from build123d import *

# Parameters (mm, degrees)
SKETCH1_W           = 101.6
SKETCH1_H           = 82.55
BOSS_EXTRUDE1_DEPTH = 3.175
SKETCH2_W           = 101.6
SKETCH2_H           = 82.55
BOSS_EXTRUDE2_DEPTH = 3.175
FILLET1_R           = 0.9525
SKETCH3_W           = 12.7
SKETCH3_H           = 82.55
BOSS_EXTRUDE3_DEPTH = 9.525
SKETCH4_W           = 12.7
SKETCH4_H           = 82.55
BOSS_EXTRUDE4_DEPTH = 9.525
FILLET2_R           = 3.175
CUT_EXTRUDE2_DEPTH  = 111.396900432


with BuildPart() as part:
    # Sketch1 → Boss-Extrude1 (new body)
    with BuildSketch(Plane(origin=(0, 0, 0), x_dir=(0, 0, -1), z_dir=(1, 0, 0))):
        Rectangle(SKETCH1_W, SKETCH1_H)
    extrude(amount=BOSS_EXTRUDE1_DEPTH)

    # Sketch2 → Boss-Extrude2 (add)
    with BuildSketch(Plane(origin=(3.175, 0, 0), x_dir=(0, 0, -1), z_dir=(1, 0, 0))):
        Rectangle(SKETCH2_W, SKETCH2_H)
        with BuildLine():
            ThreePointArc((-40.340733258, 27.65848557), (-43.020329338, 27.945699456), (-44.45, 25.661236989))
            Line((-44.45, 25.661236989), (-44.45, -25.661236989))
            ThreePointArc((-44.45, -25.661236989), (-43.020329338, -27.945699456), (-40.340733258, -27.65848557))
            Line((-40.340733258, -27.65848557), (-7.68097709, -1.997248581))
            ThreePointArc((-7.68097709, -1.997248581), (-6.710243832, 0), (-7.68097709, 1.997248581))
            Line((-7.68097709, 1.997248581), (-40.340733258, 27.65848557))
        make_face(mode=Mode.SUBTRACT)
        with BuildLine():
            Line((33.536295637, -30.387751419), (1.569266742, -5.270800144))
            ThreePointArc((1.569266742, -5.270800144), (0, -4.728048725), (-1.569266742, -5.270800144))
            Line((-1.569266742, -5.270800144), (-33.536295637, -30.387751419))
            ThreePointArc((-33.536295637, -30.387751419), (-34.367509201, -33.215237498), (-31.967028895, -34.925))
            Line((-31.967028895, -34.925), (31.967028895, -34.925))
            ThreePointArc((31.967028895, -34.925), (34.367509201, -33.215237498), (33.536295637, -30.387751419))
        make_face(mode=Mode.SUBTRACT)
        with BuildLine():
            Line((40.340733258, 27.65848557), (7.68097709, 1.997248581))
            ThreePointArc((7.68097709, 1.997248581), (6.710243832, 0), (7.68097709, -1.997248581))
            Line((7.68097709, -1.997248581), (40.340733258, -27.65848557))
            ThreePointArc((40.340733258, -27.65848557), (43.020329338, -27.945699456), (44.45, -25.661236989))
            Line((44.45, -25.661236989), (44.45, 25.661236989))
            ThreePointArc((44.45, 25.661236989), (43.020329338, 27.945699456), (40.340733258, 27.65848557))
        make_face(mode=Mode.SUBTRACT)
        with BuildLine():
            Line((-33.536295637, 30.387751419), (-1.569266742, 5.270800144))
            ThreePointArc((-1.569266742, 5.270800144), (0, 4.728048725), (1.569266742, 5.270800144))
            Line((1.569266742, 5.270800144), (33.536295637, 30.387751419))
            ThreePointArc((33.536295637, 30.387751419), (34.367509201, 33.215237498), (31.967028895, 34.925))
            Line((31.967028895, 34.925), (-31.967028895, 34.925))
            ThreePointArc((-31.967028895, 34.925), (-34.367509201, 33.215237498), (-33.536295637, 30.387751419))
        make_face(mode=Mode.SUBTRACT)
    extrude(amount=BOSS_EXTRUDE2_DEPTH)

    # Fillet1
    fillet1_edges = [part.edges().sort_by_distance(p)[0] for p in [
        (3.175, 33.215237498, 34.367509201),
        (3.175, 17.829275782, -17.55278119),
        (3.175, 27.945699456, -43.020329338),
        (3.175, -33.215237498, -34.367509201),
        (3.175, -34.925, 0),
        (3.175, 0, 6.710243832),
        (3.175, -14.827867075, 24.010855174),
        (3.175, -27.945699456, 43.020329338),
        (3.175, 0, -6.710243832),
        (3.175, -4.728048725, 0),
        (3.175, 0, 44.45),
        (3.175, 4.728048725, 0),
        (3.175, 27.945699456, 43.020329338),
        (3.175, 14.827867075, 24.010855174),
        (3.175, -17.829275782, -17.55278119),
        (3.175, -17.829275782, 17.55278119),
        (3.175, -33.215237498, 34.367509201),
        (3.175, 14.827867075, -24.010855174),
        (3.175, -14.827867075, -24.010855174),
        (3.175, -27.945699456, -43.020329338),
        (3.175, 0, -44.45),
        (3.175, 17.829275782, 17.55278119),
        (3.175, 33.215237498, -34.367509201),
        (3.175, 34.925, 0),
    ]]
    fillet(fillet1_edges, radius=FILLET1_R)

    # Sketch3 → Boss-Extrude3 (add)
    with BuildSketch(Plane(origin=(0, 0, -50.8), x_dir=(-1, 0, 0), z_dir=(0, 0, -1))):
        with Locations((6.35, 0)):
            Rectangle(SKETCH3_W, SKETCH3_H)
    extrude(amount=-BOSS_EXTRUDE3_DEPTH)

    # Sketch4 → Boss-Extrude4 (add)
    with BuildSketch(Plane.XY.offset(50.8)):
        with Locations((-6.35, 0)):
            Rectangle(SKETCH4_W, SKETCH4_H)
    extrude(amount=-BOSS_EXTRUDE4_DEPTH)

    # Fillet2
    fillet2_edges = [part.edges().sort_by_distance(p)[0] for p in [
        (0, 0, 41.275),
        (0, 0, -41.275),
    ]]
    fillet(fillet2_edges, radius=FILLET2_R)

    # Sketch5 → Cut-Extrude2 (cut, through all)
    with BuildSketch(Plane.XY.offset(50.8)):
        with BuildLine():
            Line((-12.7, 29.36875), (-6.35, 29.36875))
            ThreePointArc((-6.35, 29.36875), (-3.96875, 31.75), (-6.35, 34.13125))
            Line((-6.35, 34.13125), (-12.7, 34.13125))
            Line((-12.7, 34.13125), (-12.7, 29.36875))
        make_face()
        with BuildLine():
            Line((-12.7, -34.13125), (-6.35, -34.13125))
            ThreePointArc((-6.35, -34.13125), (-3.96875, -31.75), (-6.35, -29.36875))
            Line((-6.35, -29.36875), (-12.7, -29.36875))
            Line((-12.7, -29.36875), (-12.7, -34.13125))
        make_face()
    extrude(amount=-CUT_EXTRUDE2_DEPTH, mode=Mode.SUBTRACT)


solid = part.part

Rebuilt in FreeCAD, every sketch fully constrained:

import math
import FreeCAD as App
import Part
import Sketcher

V = App.Vector
Q = App.Units.Quantity


def edges_at(feature, points):
    """Names of the edges that pass closest to the given points."""
    edges = feature.Shape.Edges
    near = lambda p: min(range(len(edges)), key=lambda i: edges[i].distToShape(Part.Vertex(*p))[0])
    return sorted({f"Edge{near(p) + 1}" for p in points})


def add_polygon(sketch, points):
    """Adds a closed chain of lines whose ends are joined by coincident constraints."""
    first, n = sketch.GeometryCount, len(points)
    for a, b in zip(points, points[1:] + points[:1]):
        sketch.addGeometry(Part.LineSegment(App.Vector(*a, 0), App.Vector(*b, 0)), False)
    for i in range(n):
        sketch.addConstraint(Sketcher.Constraint("Coincident", first + i, 2, first + (i + 1) % n, 1))

doc = App.newDocument("Part")
body = doc.addObject("PartDesign::Body", "Body")

# Sketch on YZ plane
sketch1 = body.newObject("Sketcher::SketchObject", "Sketch")
sketch1.AttachmentSupport = (doc.getObject("YZ_Plane"), [""])
sketch1.MapMode = "FlatFace"
add_polygon(sketch1, [(41.275, 50.8), (-41.275, 50.8), (-41.275, -50.8), (41.275, -50.8)])  # lines 0-3
sketch1.addConstraint([
    Sketcher.Constraint("Horizontal", 0),
    Sketcher.Constraint("Vertical", 1),
    Sketcher.Constraint("Horizontal", 2),
    Sketcher.Constraint("Vertical", 3),
    Sketcher.Constraint("Symmetric", 0, 2, 2, 2, -1, 1),
    Sketcher.Constraint("DistanceY", 1, 2, 1, 1, Q("4 in")),
    Sketcher.Constraint("DistanceX", 0, 2, 0, 1, Q("3.25 in")),
])
pad1 = body.newObject("PartDesign::Pad", "Pad")
pad1.Profile = sketch1
pad1.Length = Q("0.125 in")

# Sketch on YZ plane
sketch2 = body.newObject("Sketcher::SketchObject", "Sketch001")
sketch2.AttachmentSupport = (doc.getObject("YZ_Plane"), [""])
sketch2.MapMode = "FlatFace"
sketch2.AttachmentOffset = App.Placement(V(0, 0, 0.125 * 25.4), App.Rotation())
add_polygon(sketch2, [(41.275, 50.8), (-41.275, 50.8), (-41.275, -50.8), (41.275, -50.8)])  # lines 0-3
sketch2.addGeometry(Part.LineSegment(V(-5.2708, -1.569267, 0), V(-30.387751, -33.536296, 0)), False)  # 4
sketch2.addGeometry(Part.ArcOfCircle(Part.Circle(V(-32.385, -31.967029, 0), V(0, 0, 1), 2.54), math.radians(180), math.radians(321.842773)), False)  # 5
sketch2.addGeometry(Part.LineSegment(V(-34.925, -31.967029, 0), V(-34.925, 31.967029, 0)), False)  # 6
sketch2.addGeometry(Part.ArcOfCircle(Part.Circle(V(-32.385, 31.967029, 0), V(0, 0, 1), 2.54), math.radians(38.157227), math.radians(180)), False)  # 7
sketch2.addGeometry(Part.LineSegment(V(-30.387751, 33.536296, 0), V(-5.2708, 1.569267, 0)), False)  # 8
sketch2.addGeometry(Part.ArcOfCircle(Part.Circle(V(-7.268049, 0, 0), V(0, 0, 1), 2.54), math.radians(-38.157227), math.radians(38.157227)), False)  # 9
sketch2.addGeometry(Part.ArcOfCircle(Part.Circle(V(25.661237, 41.91, 0), V(0, 0, 1), 2.54), math.radians(-38.157227), math.radians(90)), False)  # 10
sketch2.addGeometry(Part.LineSegment(V(27.658486, 40.340733, 0), V(1.997249, 7.680977, 0)), False)  # 11
sketch2.addGeometry(Part.ArcOfCircle(Part.Circle(V(0, 9.250244, 0), V(0, 0, 1), 2.54), math.radians(-141.842773), math.radians(-38.157227)), False)  # 12
sketch2.addGeometry(Part.LineSegment(V(-1.997249, 7.680977, 0), V(-27.658486, 40.340733, 0)), False)  # 13
sketch2.addGeometry(Part.ArcOfCircle(Part.Circle(V(-25.661237, 41.91, 0), V(0, 0, 1), 2.54), math.radians(90), math.radians(218.157227)), False)  # 14
sketch2.addGeometry(Part.LineSegment(V(-25.661237, 44.45, 0), V(25.661237, 44.45, 0)), False)  # 15
sketch2.addGeometry(Part.LineSegment(V(1.997249, -7.680977, 0), V(27.658486, -40.340733, 0)), False)  # 16
sketch2.addGeometry(Part.ArcOfCircle(Part.Circle(V(25.661237, -41.91, 0), V(0, 0, 1), 2.54), math.radians(-90), math.radians(38.157227)), False)  # 17
sketch2.addGeometry(Part.LineSegment(V(25.661237, -44.45, 0), V(-25.661237, -44.45, 0)), False)  # 18
sketch2.addGeometry(Part.ArcOfCircle(Part.Circle(V(-25.661237, -41.91, 0), V(0, 0, 1), 2.54), math.radians(141.842773), math.radians(270)), False)  # 19
sketch2.addGeometry(Part.LineSegment(V(-27.658486, -40.340733, 0), V(-1.997249, -7.680977, 0)), False)  # 20
sketch2.addGeometry(Part.ArcOfCircle(Part.Circle(V(0, -9.250244, 0), V(0, 0, 1), 2.54), math.radians(38.157227), math.radians(141.842773)), False)  # 21
sketch2.addGeometry(Part.LineSegment(V(5.2708, 1.569267, 0), V(30.387751, 33.536296, 0)), False)  # 22
sketch2.addGeometry(Part.ArcOfCircle(Part.Circle(V(32.385, 31.967029, 0), V(0, 0, 1), 2.54), math.radians(0), math.radians(141.842773)), False)  # 23
sketch2.addGeometry(Part.LineSegment(V(34.925, 31.967029, 0), V(34.925, -31.967029, 0)), False)  # 24
sketch2.addGeometry(Part.ArcOfCircle(Part.Circle(V(32.385, -31.967029, 0), V(0, 0, 1), 2.54), math.radians(-141.842773), math.radians(0)), False)  # 25
sketch2.addGeometry(Part.LineSegment(V(30.387751, -33.536296, 0), V(5.2708, -1.569267, 0)), False)  # 26
sketch2.addGeometry(Part.ArcOfCircle(Part.Circle(V(7.268049, 0, 0), V(0, 0, 1), 2.54), math.radians(141.842773), math.radians(218.157227)), False)  # 27
sketch2.addConstraint([
    Sketcher.Constraint("Tangent", 4, 2, 5, 2),
    Sketcher.Constraint("Tangent", 5, 1, 6, 1),
    Sketcher.Constraint("Tangent", 6, 2, 7, 2),
    Sketcher.Constraint("Tangent", 7, 1, 8, 1),
    Sketcher.Constraint("Tangent", 8, 2, 9, 2),
    Sketcher.Constraint("Tangent", 9, 1, 4, 1),
    Sketcher.Constraint("Tangent", 10, 1, 11, 1),
    Sketcher.Constraint("Tangent", 11, 2, 12, 2),
    Sketcher.Constraint("Tangent", 12, 1, 13, 1),
    Sketcher.Constraint("Tangent", 13, 2, 14, 2),
    Sketcher.Constraint("Tangent", 14, 1, 15, 1),
    Sketcher.Constraint("Tangent", 15, 2, 10, 2),
    Sketcher.Constraint("Tangent", 16, 2, 17, 2),
    Sketcher.Constraint("Tangent", 17, 1, 18, 1),
    Sketcher.Constraint("Tangent", 18, 2, 19, 2),
    Sketcher.Constraint("Tangent", 19, 1, 20, 1),
    Sketcher.Constraint("Tangent", 20, 2, 21, 2),
    Sketcher.Constraint("Tangent", 21, 1, 16, 1),
    Sketcher.Constraint("Tangent", 22, 2, 23, 2),
    Sketcher.Constraint("Tangent", 23, 1, 24, 1),
    Sketcher.Constraint("Tangent", 24, 2, 25, 2),
    Sketcher.Constraint("Tangent", 25, 1, 26, 1),
    Sketcher.Constraint("Tangent", 26, 2, 27, 2),
    Sketcher.Constraint("Tangent", 27, 1, 22, 1),
    Sketcher.Constraint("Horizontal", 0),
    Sketcher.Constraint("Vertical", 1),
    Sketcher.Constraint("Horizontal", 2),
    Sketcher.Constraint("Vertical", 3),
    Sketcher.Constraint("Vertical", 6),
    Sketcher.Constraint("Horizontal", 15),
    Sketcher.Constraint("Horizontal", 18),
    Sketcher.Constraint("Vertical", 24),
    Sketcher.Constraint("Equal", 5, 7),
    Sketcher.Constraint("Equal", 7, 9),
    Sketcher.Constraint("Equal", 9, 10),
    Sketcher.Constraint("Equal", 10, 12),
    Sketcher.Constraint("Equal", 12, 14),
    Sketcher.Constraint("Equal", 14, 17),
    Sketcher.Constraint("Equal", 17, 19),
    Sketcher.Constraint("Equal", 19, 21),
    Sketcher.Constraint("Equal", 21, 23),
    Sketcher.Constraint("Equal", 23, 25),
    Sketcher.Constraint("Equal", 25, 27),
    Sketcher.Constraint("Symmetric", 14, 3, 17, 3, -1, 1),
    Sketcher.Constraint("Symmetric", 12, 3, 21, 3, -1, 1),
    Sketcher.Constraint("Symmetric", 5, 3, 23, 3, -1, 1),
    Sketcher.Constraint("Symmetric", 9, 3, 27, 3, -1, 1),
    Sketcher.Constraint("Symmetric", 0, 2, 2, 2, -1, 1),
    Sketcher.Constraint("Symmetric", 11, 2, 12, 1, -2),
    Sketcher.Constraint("Symmetric", 7, 1, 22, 2, -2),
    Sketcher.Constraint("Parallel", 4, 11),
    Sketcher.Constraint("Parallel", 11, 20),
    Sketcher.Constraint("Parallel", 16, 26),
    Sketcher.Constraint("Radius", 5, Q("0.1 in")),
    Sketcher.Constraint("DistanceY", 1, 2, 1, 1, Q("4 in")),
    Sketcher.Constraint("DistanceX", 0, 2, 0, 1, Q("3.25 in")),
    Sketcher.Constraint("DistanceY", 17, 3, 10, 3, Q("3.3 in")),
    Sketcher.Constraint("DistanceX", 0, 2, 7, 3, Q("0.35 in")),
    Sketcher.Constraint("DistanceX", 8, 2, -1, 1, 5.2708),
    Sketcher.Constraint("Distance", 11, 41.53503),
    Sketcher.Constraint("DistanceX", 15, 1, 15, 2, 51.322474),
])
pad2 = body.newObject("PartDesign::Pad", "Pad001")
pad2.Profile = sketch2
pad2.Length = Q("0.125 in")
doc.recompute()

fillet = body.newObject("PartDesign::Fillet", "Fillet")
fillet.Base = (pad2, edges_at(pad2, [
    (3.175, 33.215, 34.368),
    (3.175, 17.829, -17.553),
    (3.175, 27.946, -43.02),
    (3.175, -33.215, -34.368),
    (3.175, -34.925, 0),
    (3.175, 0, 6.71),
    (3.175, -14.828, 24.011),
    (3.175, -27.946, 43.02),
    (3.175, 0, -6.71),
    (3.175, -4.728, 0),
    (3.175, 0, 44.45),
    (3.175, 4.728, 0),
    (3.175, 27.946, 43.02),
    (3.175, 14.828, 24.011),
    (3.175, -17.829, -17.553),
    (3.175, -17.829, 17.553),
    (3.175, -33.215, 34.368),
    (3.175, 14.828, -24.011),
    (3.175, -14.828, -24.011),
    (3.175, -27.946, -43.02),
    (3.175, 0, -44.45),
    (3.175, 17.829, 17.553),
    (3.175, 33.215, -34.368),
    (3.175, 34.925, 0),
]))
fillet.Radius = Q("0.0375 in")

# Sketch on XY plane
sketch3 = body.newObject("Sketcher::SketchObject", "Sketch002")
sketch3.AttachmentSupport = (doc.getObject("XY_Plane"), [""])
sketch3.MapMode = "FlatFace"
sketch3.AttachmentOffset = App.Placement(V(0, 0, -2 * 25.4), App.Rotation())
add_polygon(sketch3, [(0, 41.275), (0, -41.275), (-12.7, -41.275), (-12.7, 41.275)])  # lines 0-3
sketch3.addConstraint([
    Sketcher.Constraint("Vertical", 0),
    Sketcher.Constraint("Horizontal", 1),
    Sketcher.Constraint("Vertical", 2),
    Sketcher.Constraint("Horizontal", 3),
    Sketcher.Constraint("Symmetric", 0, 2, 3, 2, -1, 1),
    Sketcher.Constraint("DistanceX", 1, 2, 1, 1, Q("0.5 in")),
    Sketcher.Constraint("DistanceY", 0, 2, 0, 1, Q("3.25 in")),
])
pad3 = body.newObject("PartDesign::Pad", "Pad002")
pad3.Profile = sketch3
pad3.Length = Q("0.375 in")

# Sketch on XY plane
sketch4 = body.newObject("Sketcher::SketchObject", "Sketch003")
sketch4.AttachmentSupport = (doc.getObject("XY_Plane"), [""])
sketch4.MapMode = "FlatFace"
sketch4.AttachmentOffset = App.Placement(V(0, 0, 2 * 25.4), App.Rotation())
add_polygon(sketch4, [(-12.7, 41.275), (-12.7, -41.275), (0, -41.275), (0, 41.275)])  # lines 0-3
sketch4.addConstraint([
    Sketcher.Constraint("Vertical", 0),
    Sketcher.Constraint("Horizontal", 1),
    Sketcher.Constraint("Vertical", 2),
    Sketcher.Constraint("Horizontal", 3),
    Sketcher.Constraint("Symmetric", 1, 2, 2, 2, -1, 1),
    Sketcher.Constraint("DistanceX", 1, 1, 1, 2, Q("0.5 in")),
    Sketcher.Constraint("DistanceY", 0, 2, 0, 1, Q("3.25 in")),
])
pad4 = body.newObject("PartDesign::Pad", "Pad003")
pad4.Profile = sketch4
pad4.Length = Q("0.375 in")
pad4.Reversed = True
doc.recompute()

fillet2 = body.newObject("PartDesign::Fillet", "Fillet001")
fillet2.Base = (pad4, edges_at(pad4, [(0, 0, 41.275), (0, 0, -41.275)]))
fillet2.Radius = Q("0.125 in")

# Sketch on XY plane
sketch5 = body.newObject("Sketcher::SketchObject", "Sketch004")
sketch5.AttachmentSupport = (doc.getObject("XY_Plane"), [""])
sketch5.MapMode = "FlatFace"
sketch5.AttachmentOffset = App.Placement(V(0, 0, 2 * 25.4), App.Rotation())
sketch5.addGeometry([
    Part.LineSegment(V(-12.7, 29.36875, 0), V(-6.35, 29.36875, 0)),  # 0
    Part.ArcOfCircle(Part.Circle(V(-6.35, 31.75, 0), V(0, 0, 1), 2.38125), math.radians(-90), math.radians(90)),  # 1
    Part.LineSegment(V(-6.35, 34.13125, 0), V(-12.7, 34.13125, 0)),  # 2
    Part.LineSegment(V(-12.7, 34.13125, 0), V(-12.7, 29.36875, 0)),  # 3
    Part.LineSegment(V(-12.7, -34.13125, 0), V(-6.35, -34.13125, 0)),  # 4
    Part.ArcOfCircle(Part.Circle(V(-6.35, -31.75, 0), V(0, 0, 1), 2.38125), math.radians(-90), math.radians(90)),  # 5
    Part.LineSegment(V(-6.35, -29.36875, 0), V(-12.7, -29.36875, 0)),  # 6
    Part.LineSegment(V(-12.7, -29.36875, 0), V(-12.7, -34.13125, 0)),  # 7
], False)
sketch5.addConstraint([
    Sketcher.Constraint("Tangent", 0, 2, 1, 1),
    Sketcher.Constraint("Tangent", 1, 2, 2, 1),
    Sketcher.Constraint("Coincident", 2, 2, 3, 1),
    Sketcher.Constraint("Coincident", 3, 2, 0, 1),
    Sketcher.Constraint("Tangent", 4, 2, 5, 1),
    Sketcher.Constraint("Tangent", 5, 2, 6, 1),
    Sketcher.Constraint("Coincident", 6, 2, 7, 1),
    Sketcher.Constraint("Coincident", 7, 2, 4, 1),
    Sketcher.Constraint("Horizontal", 0),
    Sketcher.Constraint("Horizontal", 2),
    Sketcher.Constraint("Vertical", 3),
    Sketcher.Constraint("Horizontal", 4),
    Sketcher.Constraint("Horizontal", 6),
    Sketcher.Constraint("Vertical", 7),
    Sketcher.Constraint("Equal", 1, 5),
    Sketcher.Constraint("Symmetric", 1, 3, 5, 3, -1),
    Sketcher.Constraint("Vertical", 3, 2, 6, 2),
    Sketcher.Constraint("Radius", 1, Q("0.09375 in")),
    Sketcher.Constraint("DistanceX", 0, 1, 0, 2, Q("0.25 in")),
    Sketcher.Constraint("DistanceX", 2, 2, -1, 1, Q("0.5 in")),
    Sketcher.Constraint("DistanceY", 5, 3, 1, 3, Q("2.5 in")),
])
pocket1 = body.newObject("PartDesign::Pocket", "Pocket")
pocket1.Profile = sketch5
pocket1.Type = "ThroughAll"

doc.recompute()
